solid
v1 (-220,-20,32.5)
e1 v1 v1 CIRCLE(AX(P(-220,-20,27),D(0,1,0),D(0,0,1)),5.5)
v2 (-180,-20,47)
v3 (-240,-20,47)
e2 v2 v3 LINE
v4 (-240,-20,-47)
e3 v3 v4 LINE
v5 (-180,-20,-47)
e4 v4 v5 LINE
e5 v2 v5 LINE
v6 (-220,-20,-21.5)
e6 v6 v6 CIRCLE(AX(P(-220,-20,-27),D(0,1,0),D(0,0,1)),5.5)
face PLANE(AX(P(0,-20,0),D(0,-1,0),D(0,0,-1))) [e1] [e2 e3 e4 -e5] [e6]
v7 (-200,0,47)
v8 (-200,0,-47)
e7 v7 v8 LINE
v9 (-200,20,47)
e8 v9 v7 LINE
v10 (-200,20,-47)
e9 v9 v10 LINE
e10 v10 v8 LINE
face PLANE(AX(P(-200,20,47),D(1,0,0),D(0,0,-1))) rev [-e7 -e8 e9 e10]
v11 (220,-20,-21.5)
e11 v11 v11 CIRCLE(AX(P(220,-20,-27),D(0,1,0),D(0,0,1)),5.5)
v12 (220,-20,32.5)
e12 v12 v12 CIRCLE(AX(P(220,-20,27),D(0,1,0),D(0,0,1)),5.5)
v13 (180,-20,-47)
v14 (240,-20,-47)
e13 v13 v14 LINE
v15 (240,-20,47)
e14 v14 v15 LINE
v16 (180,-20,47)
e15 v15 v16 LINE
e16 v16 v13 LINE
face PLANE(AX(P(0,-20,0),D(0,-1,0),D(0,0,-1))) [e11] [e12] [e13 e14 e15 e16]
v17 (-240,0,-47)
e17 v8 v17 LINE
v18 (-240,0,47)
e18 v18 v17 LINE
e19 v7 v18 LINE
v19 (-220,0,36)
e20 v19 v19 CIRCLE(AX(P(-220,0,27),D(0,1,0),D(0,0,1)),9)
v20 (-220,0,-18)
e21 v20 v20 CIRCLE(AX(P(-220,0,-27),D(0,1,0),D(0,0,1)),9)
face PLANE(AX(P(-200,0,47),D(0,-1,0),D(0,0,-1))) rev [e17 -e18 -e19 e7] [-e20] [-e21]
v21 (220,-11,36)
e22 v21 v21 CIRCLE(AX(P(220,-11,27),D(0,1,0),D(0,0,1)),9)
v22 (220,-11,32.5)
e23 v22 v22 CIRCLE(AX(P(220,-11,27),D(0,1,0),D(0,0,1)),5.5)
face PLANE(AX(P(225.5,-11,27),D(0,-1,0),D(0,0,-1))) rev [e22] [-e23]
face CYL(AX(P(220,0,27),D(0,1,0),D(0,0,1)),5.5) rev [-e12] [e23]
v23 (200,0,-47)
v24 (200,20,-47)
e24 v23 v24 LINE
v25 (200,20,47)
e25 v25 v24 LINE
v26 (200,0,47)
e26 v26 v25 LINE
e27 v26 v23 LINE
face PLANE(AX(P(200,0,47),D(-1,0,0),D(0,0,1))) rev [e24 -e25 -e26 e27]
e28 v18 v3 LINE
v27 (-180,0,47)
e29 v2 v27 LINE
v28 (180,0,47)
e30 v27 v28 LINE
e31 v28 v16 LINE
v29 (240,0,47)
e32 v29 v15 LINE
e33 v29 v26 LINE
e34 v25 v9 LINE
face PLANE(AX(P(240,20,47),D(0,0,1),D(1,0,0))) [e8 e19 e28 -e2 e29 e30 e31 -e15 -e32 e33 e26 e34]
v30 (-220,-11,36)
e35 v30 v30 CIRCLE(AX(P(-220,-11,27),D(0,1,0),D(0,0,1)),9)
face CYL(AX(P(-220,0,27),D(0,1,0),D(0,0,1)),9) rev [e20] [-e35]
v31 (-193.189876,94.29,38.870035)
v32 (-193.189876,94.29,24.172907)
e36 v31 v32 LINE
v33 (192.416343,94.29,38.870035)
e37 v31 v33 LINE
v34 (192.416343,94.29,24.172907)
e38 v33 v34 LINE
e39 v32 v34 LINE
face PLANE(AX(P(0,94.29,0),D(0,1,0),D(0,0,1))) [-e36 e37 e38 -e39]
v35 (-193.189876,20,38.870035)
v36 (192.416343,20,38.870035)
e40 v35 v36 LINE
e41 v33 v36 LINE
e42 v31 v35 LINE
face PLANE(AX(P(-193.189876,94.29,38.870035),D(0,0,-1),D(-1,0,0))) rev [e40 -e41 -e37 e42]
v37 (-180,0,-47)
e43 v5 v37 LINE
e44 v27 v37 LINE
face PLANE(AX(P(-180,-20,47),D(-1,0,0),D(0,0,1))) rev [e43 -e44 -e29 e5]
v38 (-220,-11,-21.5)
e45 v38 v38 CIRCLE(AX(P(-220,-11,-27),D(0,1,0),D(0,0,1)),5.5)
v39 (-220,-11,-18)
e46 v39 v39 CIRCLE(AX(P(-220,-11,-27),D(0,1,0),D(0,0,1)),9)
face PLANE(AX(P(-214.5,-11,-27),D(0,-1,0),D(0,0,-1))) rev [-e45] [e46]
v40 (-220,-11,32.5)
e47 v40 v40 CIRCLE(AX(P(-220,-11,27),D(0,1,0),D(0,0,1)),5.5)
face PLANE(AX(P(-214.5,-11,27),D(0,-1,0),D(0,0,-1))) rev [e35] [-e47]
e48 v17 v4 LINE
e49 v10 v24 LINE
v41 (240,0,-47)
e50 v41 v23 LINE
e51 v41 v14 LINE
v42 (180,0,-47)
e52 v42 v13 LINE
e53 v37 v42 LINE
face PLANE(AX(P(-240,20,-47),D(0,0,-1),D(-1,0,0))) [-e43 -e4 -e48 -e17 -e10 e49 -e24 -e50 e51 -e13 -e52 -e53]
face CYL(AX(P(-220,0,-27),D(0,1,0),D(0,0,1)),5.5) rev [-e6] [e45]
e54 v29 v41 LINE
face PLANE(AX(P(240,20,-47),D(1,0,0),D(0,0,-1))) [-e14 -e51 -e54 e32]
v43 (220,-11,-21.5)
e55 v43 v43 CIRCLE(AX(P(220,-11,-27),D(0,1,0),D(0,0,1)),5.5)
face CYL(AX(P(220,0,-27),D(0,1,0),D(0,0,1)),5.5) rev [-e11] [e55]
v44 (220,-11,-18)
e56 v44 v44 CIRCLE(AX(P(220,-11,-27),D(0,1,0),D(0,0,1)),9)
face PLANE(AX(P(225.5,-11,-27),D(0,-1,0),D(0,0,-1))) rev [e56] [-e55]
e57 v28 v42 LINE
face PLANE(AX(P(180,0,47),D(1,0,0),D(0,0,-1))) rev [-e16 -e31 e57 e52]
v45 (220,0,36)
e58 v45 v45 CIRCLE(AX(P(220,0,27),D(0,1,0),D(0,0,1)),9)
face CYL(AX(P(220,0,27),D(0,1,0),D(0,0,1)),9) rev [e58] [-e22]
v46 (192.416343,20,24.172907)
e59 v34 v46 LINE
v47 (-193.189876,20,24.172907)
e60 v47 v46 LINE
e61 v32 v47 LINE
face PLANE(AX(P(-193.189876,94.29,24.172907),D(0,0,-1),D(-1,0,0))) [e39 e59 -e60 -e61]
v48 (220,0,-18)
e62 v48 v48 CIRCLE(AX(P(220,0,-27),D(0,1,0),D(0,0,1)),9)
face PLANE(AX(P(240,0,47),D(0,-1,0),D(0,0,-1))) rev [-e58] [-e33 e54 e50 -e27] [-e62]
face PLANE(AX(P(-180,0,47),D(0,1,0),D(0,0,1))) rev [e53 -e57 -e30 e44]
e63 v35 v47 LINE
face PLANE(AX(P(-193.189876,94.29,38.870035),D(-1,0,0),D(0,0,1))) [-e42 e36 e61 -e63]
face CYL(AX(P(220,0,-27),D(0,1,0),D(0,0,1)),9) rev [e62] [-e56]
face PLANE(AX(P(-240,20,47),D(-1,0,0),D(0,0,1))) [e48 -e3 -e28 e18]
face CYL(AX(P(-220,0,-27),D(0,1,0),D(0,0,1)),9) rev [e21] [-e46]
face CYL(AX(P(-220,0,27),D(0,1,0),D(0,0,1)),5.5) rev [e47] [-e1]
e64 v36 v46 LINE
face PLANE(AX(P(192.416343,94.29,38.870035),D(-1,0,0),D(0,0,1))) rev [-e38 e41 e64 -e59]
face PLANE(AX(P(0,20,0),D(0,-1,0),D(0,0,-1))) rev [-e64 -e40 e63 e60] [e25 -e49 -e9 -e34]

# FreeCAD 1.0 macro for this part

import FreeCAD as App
import Part
import Sketcher
Q = App.Units.Quantity

doc = App.newDocument("Part")
body = doc.addObject("PartDesign::Body", "Body")

sketch1 = body.newObject("Sketcher::SketchObject", "Sketch")
sketch1.AttachmentSupport = (doc.getObject("XZ_Plane"), [""])
sketch1.MapMode = "FlatFace"
sketch1.AttachmentOffset = App.Placement(App.Vector(0, 0, 20), App.Rotation())
sketch1.addGeometry([
    Part.LineSegment(App.Vector(-240, 47, 0), App.Vector(-240, -47, 0)),
    Part.LineSegment(App.Vector(-240, -47, 0), App.Vector(240, -47, 0)),
    Part.LineSegment(App.Vector(240, -47, 0), App.Vector(240, 47, 0)),
    Part.LineSegment(App.Vector(240, 47, 0), App.Vector(-240, 47, 0)),
], False)
sketch1.addConstraint([
    Sketcher.Constraint("Coincident", 0, 2, 1, 1),
    Sketcher.Constraint("Coincident", 1, 2, 2, 1),
    Sketcher.Constraint("Coincident", 2, 2, 3, 1),
    Sketcher.Constraint("Coincident", 3, 2, 0, 1),
    Sketcher.Constraint("Vertical", 0),
    Sketcher.Constraint("Horizontal", 1),
    Sketcher.Constraint("Vertical", 2),
    Sketcher.Constraint("Horizontal", 3),
    Sketcher.Constraint("Symmetric", 0, 2, 2, 2, -1, 1),
    Sketcher.Constraint("DistanceX", 1, 1, 1, 2, Q("480 mm")),
    Sketcher.Constraint("DistanceY", 0, 2, 0, 1, Q("94 mm")),
])
pad1 = body.newObject("PartDesign::Pad", "Pad")
pad1.Profile = sketch1
pad1.Length = 40
pad1.Reversed = True

sketch2 = body.newObject("Sketcher::SketchObject", "Sketch001")
sketch2.AttachmentSupport = (doc.getObject("XY_Plane"), [""])
sketch2.MapMode = "FlatFace"
sketch2.AttachmentOffset = App.Placement(App.Vector(0, 0, -47), App.Rotation())
sketch2.addGeometry([
    Part.LineSegment(App.Vector(-200, 20, 0), App.Vector(-200, 0, 0)),
    Part.LineSegment(App.Vector(-200, 0, 0), App.Vector(-240, 0, 0)),
    Part.LineSegment(App.Vector(-240, 0, 0), App.Vector(-240, 20, 0)),
    Part.LineSegment(App.Vector(-240, 20, 0), App.Vector(-200, 20, 0)),
], False)
sketch2.addConstraint([
    Sketcher.Constraint("Coincident", 0, 2, 1, 1),
    Sketcher.Constraint("Coincident", 1, 2, 2, 1),
    Sketcher.Constraint("Coincident", 2, 2, 3, 1),
    Sketcher.Constraint("Coincident", 3, 2, 0, 1),
    Sketcher.Constraint("Vertical", 0),
    Sketcher.Constraint("Horizontal", 1),
    Sketcher.Constraint("Vertical", 2),
    Sketcher.Constraint("Horizontal", 3),
    Sketcher.Constraint("PointOnObject", 0, 2, -1),
    Sketcher.Constraint("DistanceX", 1, 2, 1, 1, Q("40 mm")),
    Sketcher.Constraint("DistanceY", 0, 2, 0, 1, Q("20 mm")),
    Sketcher.Constraint("DistanceX", 0, 2, -1, 1, Q("200 mm")),
])
pocket1 = body.newObject("PartDesign::Pocket", "Pocket")
pocket1.Profile = sketch2
pocket1.Type = "ThroughAll"
pocket1.Reversed = True

sketch3 = body.newObject("Sketcher::SketchObject", "Sketch002")
sketch3.AttachmentSupport = (doc.getObject("XY_Plane"), [""])
sketch3.MapMode = "FlatFace"
sketch3.AttachmentOffset = App.Placement(App.Vector(0, 0, -47), App.Rotation())
sketch3.addGeometry([
    Part.LineSegment(App.Vector(180, 0, 0), App.Vector(180, -20, 0)),
    Part.LineSegment(App.Vector(180, -20, 0), App.Vector(-180, -20, 0)),
    Part.LineSegment(App.Vector(-180, -20, 0), App.Vector(-180, 0, 0)),
    Part.LineSegment(App.Vector(-180, 0, 0), App.Vector(180, 0, 0)),
], False)
sketch3.addConstraint([
    Sketcher.Constraint("Coincident", 0, 2, 1, 1),
    Sketcher.Constraint("Coincident", 1, 2, 2, 1),
    Sketcher.Constraint("Coincident", 2, 2, 3, 1),
    Sketcher.Constraint("Coincident", 3, 2, 0, 1),
    Sketcher.Constraint("Vertical", 0),
    Sketcher.Constraint("Horizontal", 1),
    Sketcher.Constraint("Vertical", 2),
    Sketcher.Constraint("Horizontal", 3),
    Sketcher.Constraint("Symmetric", 2, 2, 3, 2, -1, 1),
    Sketcher.Constraint("DistanceX", 1, 2, 1, 1, Q("360 mm")),
    Sketcher.Constraint("DistanceY", 0, 2, 0, 1, Q("20 mm")),
])
pocket2 = body.newObject("PartDesign::Pocket", "Pocket001")
pocket2.Profile = sketch3
pocket2.Type = "ThroughAll"
pocket2.Reversed = True

sketch4 = body.newObject("Sketcher::SketchObject", "Sketch003")
sketch4.AttachmentSupport = (doc.getObject("XY_Plane"), [""])
sketch4.MapMode = "FlatFace"
sketch4.AttachmentOffset = App.Placement(App.Vector(0, 0, -47), App.Rotation())
sketch4.addGeometry([
    Part.LineSegment(App.Vector(240, 20, 0), App.Vector(240, 0, 0)),
    Part.LineSegment(App.Vector(240, 0, 0), App.Vector(200, 0, 0)),
    Part.LineSegment(App.Vector(200, 0, 0), App.Vector(200, 20, 0)),
    Part.LineSegment(App.Vector(200, 20, 0), App.Vector(240, 20, 0)),
], False)
sketch4.addConstraint([
    Sketcher.Constraint("Coincident", 0, 2, 1, 1),
    Sketcher.Constraint("Coincident", 1, 2, 2, 1),
    Sketcher.Constraint("Coincident", 2, 2, 3, 1),
    Sketcher.Constraint("Coincident", 3, 2, 0, 1),
    Sketcher.Constraint("Vertical", 0),
    Sketcher.Constraint("Horizontal", 1),
    Sketcher.Constraint("Vertical", 2),
    Sketcher.Constraint("Horizontal", 3),
    Sketcher.Constraint("PointOnObject", 0, 2, -1),
    Sketcher.Constraint("DistanceX", 1, 2, 1, 1, Q("40 mm")),
    Sketcher.Constraint("DistanceY", 0, 2, 0, 1, Q("20 mm")),
    Sketcher.Constraint("DistanceX", -1, 1, 0, 2, Q("240 mm")),
])
pocket3 = body.newObject("PartDesign::Pocket", "Pocket002")
pocket3.Profile = sketch4
pocket3.Type = "ThroughAll"
pocket3.Reversed = True

sketch5 = body.newObject("Sketcher::SketchObject", "Sketch004")
sketch5.AttachmentSupport = (doc.getObject("XZ_Plane"), [""])
sketch5.MapMode = "FlatFace"
sketch5.addGeometry([
    Part.Circle(App.Vector(220, 27, 0), App.Vector(0, 0, 1), 5.5),
    Part.Circle(App.Vector(220, -27, 0), App.Vector(0, 0, 1), 5.5),
    Part.Circle(App.Vector(-220, 27, 0), App.Vector(0, 0, 1), 5.5),
    Part.Circle(App.Vector(-220, -27, 0), App.Vector(0, 0, 1), 5.5),
], False)
sketch5.addConstraint([
    Sketcher.Constraint("Equal", 0, 1),
    Sketcher.Constraint("Equal", 1, 2),
    Sketcher.Constraint("Equal", 2, 3),
    Sketcher.Constraint("Symmetric", 1, 3, 2, 3, -1, 1),
    Sketcher.Constraint("Symmetric", 0, 3, 3, 3, -1, 1),
    Sketcher.Constraint("Symmetric", 0, 3, 2, 3, -2),
    Sketcher.Constraint("Diameter", 0, Q("11 mm")),
    Sketcher.Constraint("DistanceX", -1, 1, 0, 3, Q("220 mm")),
    Sketcher.Constraint("DistanceY", -1, 1, 0, 3, Q("27 mm")),
])
doc.recompute()
hole = body.newObject("PartDesign::Hole", "Hole")
hole.Profile = sketch5
hole.ThreadType = "None"
hole.Diameter = 11
hole.DepthType = "ThroughAll"
hole.HoleCutType = "Counterbore"
hole.HoleCutDiameter = 18
hole.HoleCutDepth = 11
hole.Reversed = True

sketch6 = body.newObject("Sketcher::SketchObject", "Sketch005")
sketch6.AttachmentSupport = (doc.getObject("XZ_Plane"), [""])
sketch6.MapMode = "FlatFace"
sketch6.AttachmentOffset = App.Placement(App.Vector(0, 0, -20), App.Rotation())
sketch6.addGeometry([
    Part.LineSegment(App.Vector(-193.189876, 24.172907, 0), App.Vector(-193.189876, 38.870035, 0)),
    Part.LineSegment(App.Vector(-193.189876, 38.870035, 0), App.Vector(192.416343, 38.870035, 0)),
    Part.LineSegment(App.Vector(192.416343, 38.870035, 0), App.Vector(192.416343, 24.172907, 0)),
    Part.LineSegment(App.Vector(192.416343, 24.172907, 0), App.Vector(-193.189876, 24.172907, 0)),
], False)
sketch6.addConstraint([
    Sketcher.Constraint("Coincident", 0, 2, 1, 1),
    Sketcher.Constraint("Coincident", 1, 2, 2, 1),
    Sketcher.Constraint("Coincident", 2, 2, 3, 1),
    Sketcher.Constraint("Coincident", 3, 2, 0, 1),
    Sketcher.Constraint("Vertical", 0),
    Sketcher.Constraint("Horizontal", 1),
    Sketcher.Constraint("Vertical", 2),
    Sketcher.Constraint("Horizontal", 3),
    Sketcher.Constraint("DistanceX", 1, 1, 1, 2, Q("385.606219 mm")),
    Sketcher.Constraint("DistanceY", 0, 1, 0, 2, Q("14.697128 mm")),
    Sketcher.Constraint("DistanceX", 0, 2, -1, 1, Q("193.189876 mm")),
    Sketcher.Constraint("DistanceY", -1, 1, 0, 2, Q("38.870035 mm")),
])
pad2 = body.newObject("PartDesign::Pad", "Pad001")
pad2.Profile = sketch6
pad2.Length = 74.29
pad2.Reversed = True

doc.recompute()
